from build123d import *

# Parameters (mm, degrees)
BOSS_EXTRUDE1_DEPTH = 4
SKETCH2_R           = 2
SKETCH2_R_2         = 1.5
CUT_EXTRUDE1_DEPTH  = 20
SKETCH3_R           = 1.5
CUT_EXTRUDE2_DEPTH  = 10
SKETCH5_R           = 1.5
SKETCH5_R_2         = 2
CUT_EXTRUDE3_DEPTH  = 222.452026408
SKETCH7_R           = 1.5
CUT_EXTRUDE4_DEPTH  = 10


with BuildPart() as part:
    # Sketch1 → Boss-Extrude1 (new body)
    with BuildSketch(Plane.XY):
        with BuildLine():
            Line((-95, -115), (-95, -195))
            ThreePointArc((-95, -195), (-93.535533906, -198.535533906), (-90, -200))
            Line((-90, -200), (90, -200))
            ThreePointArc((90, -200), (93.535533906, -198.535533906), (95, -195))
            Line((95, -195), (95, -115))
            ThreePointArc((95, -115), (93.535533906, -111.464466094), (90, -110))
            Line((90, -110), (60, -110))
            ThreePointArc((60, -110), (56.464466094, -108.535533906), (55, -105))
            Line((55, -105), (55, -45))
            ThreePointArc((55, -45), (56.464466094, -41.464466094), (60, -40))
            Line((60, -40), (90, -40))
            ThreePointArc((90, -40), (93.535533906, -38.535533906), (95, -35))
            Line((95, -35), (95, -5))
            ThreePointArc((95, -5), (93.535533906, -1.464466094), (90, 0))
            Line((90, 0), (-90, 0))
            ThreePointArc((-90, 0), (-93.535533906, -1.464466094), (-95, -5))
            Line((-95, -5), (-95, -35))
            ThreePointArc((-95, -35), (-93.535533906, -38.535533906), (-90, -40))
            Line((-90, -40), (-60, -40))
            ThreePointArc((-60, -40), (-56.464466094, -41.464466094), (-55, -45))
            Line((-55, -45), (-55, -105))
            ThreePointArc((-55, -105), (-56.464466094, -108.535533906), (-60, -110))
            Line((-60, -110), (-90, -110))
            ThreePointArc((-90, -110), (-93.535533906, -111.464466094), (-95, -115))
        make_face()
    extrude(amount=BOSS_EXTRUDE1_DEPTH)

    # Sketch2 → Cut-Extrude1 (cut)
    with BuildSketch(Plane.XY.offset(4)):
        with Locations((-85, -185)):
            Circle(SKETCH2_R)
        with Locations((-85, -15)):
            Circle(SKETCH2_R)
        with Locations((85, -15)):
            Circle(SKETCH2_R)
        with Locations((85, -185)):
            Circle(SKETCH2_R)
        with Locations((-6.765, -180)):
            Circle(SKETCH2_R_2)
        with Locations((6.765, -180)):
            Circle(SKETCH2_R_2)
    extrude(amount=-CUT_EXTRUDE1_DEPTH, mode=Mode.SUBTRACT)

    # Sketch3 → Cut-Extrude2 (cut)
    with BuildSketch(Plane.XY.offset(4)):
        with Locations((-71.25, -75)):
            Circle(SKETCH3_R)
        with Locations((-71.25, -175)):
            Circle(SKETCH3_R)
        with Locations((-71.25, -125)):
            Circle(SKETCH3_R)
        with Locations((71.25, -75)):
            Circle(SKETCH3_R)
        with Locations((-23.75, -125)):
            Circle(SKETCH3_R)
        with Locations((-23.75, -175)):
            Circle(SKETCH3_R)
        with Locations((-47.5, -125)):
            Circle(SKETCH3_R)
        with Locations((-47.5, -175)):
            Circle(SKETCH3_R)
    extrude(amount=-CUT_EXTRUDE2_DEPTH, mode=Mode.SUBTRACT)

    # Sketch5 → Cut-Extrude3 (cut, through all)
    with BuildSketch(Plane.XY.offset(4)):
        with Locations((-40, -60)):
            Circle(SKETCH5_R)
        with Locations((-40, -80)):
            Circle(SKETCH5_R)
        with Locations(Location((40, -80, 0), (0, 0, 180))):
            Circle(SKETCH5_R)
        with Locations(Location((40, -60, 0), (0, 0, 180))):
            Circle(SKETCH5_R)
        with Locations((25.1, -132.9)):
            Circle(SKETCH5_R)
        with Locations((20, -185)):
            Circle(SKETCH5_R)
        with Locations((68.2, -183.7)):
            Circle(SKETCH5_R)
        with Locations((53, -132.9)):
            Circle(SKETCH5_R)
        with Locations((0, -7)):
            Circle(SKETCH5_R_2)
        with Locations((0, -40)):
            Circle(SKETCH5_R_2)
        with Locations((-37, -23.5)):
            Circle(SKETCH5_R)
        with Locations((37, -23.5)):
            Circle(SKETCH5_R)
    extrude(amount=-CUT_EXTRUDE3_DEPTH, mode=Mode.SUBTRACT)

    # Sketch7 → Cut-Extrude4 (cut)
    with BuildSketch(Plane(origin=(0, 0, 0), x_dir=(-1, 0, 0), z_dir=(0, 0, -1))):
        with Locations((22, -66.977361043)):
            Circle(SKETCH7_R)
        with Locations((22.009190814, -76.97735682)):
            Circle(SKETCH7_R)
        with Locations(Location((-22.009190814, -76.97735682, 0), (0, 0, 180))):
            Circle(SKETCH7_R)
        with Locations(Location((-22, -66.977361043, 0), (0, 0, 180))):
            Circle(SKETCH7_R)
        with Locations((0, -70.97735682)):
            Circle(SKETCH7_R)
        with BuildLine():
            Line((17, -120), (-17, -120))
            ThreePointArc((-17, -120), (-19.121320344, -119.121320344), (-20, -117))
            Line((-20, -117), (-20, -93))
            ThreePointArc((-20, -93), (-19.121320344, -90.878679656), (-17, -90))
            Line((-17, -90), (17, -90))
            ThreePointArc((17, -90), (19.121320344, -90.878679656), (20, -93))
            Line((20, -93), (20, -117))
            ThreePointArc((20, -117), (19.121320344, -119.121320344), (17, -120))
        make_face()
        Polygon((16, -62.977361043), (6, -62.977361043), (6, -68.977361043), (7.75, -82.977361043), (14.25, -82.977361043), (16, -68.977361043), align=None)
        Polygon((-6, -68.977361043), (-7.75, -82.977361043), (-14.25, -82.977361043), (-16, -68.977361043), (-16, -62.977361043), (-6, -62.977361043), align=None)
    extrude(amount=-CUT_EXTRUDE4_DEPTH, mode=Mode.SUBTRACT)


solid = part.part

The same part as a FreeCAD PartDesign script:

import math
import FreeCAD as App
import Part
import Sketcher


def add_polygon(sketch, points):
    """Adds a closed chain of lines whose ends are joined by coincident constraints."""
    first, n = sketch.GeometryCount, len(points)
    for a, b in zip(points, points[1:] + points[:1]):
        sketch.addGeometry(Part.LineSegment(App.Vector(*a, 0), App.Vector(*b, 0)), False)
    for i in range(n):
        sketch.addConstraint(Sketcher.Constraint("Coincident", first + i, 2, first + (i + 1) % n, 1))

doc = App.newDocument("Part")
body = doc.addObject("PartDesign::Body", "Body")

sketch1 = body.newObject("Sketcher::SketchObject", "Sketch")
sketch1.AttachmentSupport = (doc.getObject("XY_Plane"), [""])
sketch1.MapMode = "FlatFace"
sketch1.addGeometry([
    Part.LineSegment(App.Vector(-95, -115, 0), App.Vector(-95, -195, 0)),
    Part.ArcOfCircle(Part.Circle(App.Vector(-90, -195, 0), App.Vector(0, 0, 1), 5), math.radians(180), math.radians(270)),
    Part.LineSegment(App.Vector(-90, -200, 0), App.Vector(90, -200, 0)),
    Part.ArcOfCircle(Part.Circle(App.Vector(90, -195, 0), App.Vector(0, 0, 1), 5), math.radians(-90), math.radians(0)),
    Part.LineSegment(App.Vector(95, -195, 0), App.Vector(95, -115, 0)),
    Part.ArcOfCircle(Part.Circle(App.Vector(90, -115, 0), App.Vector(0, 0, 1), 5), math.radians(0), math.radians(90)),
    Part.LineSegment(App.Vector(90, -110, 0), App.Vector(60, -110, 0)),
    Part.ArcOfCircle(Part.Circle(App.Vector(60, -105, 0), App.Vector(0, 0, 1), 5), math.radians(180), math.radians(270)),
    Part.LineSegment(App.Vector(55, -105, 0), App.Vector(55, -45, 0)),
    Part.ArcOfCircle(Part.Circle(App.Vector(60, -45, 0), App.Vector(0, 0, 1), 5), math.radians(90), math.radians(180)),
    Part.LineSegment(App.Vector(60, -40, 0), App.Vector(90, -40, 0)),
    Part.ArcOfCircle(Part.Circle(App.Vector(90, -35, 0), App.Vector(0, 0, 1), 5), math.radians(-90), math.radians(0)),
    Part.LineSegment(App.Vector(95, -35, 0), App.Vector(95, -5, 0)),
    Part.ArcOfCircle(Part.Circle(App.Vector(90, -5, 0), App.Vector(0, 0, 1), 5), math.radians(0), math.radians(90)),
    Part.LineSegment(App.Vector(90, 0, 0), App.Vector(-90, 0, 0)),
    Part.ArcOfCircle(Part.Circle(App.Vector(-90, -5, 0), App.Vector(0, 0, 1), 5), math.radians(90), math.radians(180)),
    Part.LineSegment(App.Vector(-95, -5, 0), App.Vector(-95, -35, 0)),
    Part.ArcOfCircle(Part.Circle(App.Vector(-90, -35, 0), App.Vector(0, 0, 1), 5), math.radians(180), math.radians(270)),
    Part.LineSegment(App.Vector(-90, -40, 0), App.Vector(-60, -40, 0)),
    Part.ArcOfCircle(Part.Circle(App.Vector(-60, -45, 0), App.Vector(0, 0, 1), 5), math.radians(0), math.radians(90)),
    Part.LineSegment(App.Vector(-55, -45, 0), App.Vector(-55, -105, 0)),
    Part.ArcOfCircle(Part.Circle(App.Vector(-60, -105, 0), App.Vector(0, 0, 1), 5), math.radians(-90), math.radians(0)),
    Part.LineSegment(App.Vector(-60, -110, 0), App.Vector(-90, -110, 0)),
    Part.ArcOfCircle(Part.Circle(App.Vector(-90, -115, 0), App.Vector(0, 0, 1), 5), math.radians(90), math.radians(180)),
], False)
sketch1.addConstraint([
    Sketcher.Constraint("Tangent", 0, 2, 1, 1),
    Sketcher.Constraint("Tangent", 1, 2, 2, 1),
    Sketcher.Constraint("Tangent", 2, 2, 3, 1),
    Sketcher.Constraint("Tangent", 3, 2, 4, 1),
    Sketcher.Constraint("Tangent", 4, 2, 5, 1),
    Sketcher.Constraint("Tangent", 5, 2, 6, 1),
    Sketcher.Constraint("Tangent", 6, 2, 7, 2),
    Sketcher.Constraint("Tangent", 7, 1, 8, 1),
    Sketcher.Constraint("Tangent", 8, 2, 9, 2),
    Sketcher.Constraint("Tangent", 9, 1, 10, 1),
    Sketcher.Constraint("Tangent", 10, 2, 11, 1),
    Sketcher.Constraint("Tangent", 11, 2, 12, 1),
    Sketcher.Constraint("Tangent", 12, 2, 13, 1),
    Sketcher.Constraint("Tangent", 13, 2, 14, 1),
    Sketcher.Constraint("Tangent", 14, 2, 15, 1),
    Sketcher.Constraint("Tangent", 15, 2, 16, 1),
    Sketcher.Constraint("Tangent", 16, 2, 17, 1),
    Sketcher.Constraint("Tangent", 17, 2, 18, 1),
    Sketcher.Constraint("Tangent", 18, 2, 19, 2),
    Sketcher.Constraint("Tangent", 19, 1, 20, 1),
    Sketcher.Constraint("Tangent", 20, 2, 21, 2),
    Sketcher.Constraint("Tangent", 21, 1, 22, 1),
    Sketcher.Constraint("Tangent", 22, 2, 23, 1),
    Sketcher.Constraint("Tangent", 23, 2, 0, 1),
    Sketcher.Constraint("Vertical", 0),
    Sketcher.Constraint("Horizontal", 2),
    Sketcher.Constraint("Vertical", 4),
    Sketcher.Constraint("Horizontal", 6),
    Sketcher.Constraint("Vertical", 8),
    Sketcher.Constraint("Horizontal", 10),
    Sketcher.Constraint("Vertical", 12),
    Sketcher.Constraint("Horizontal", 14),
    Sketcher.Constraint("Vertical", 16),
    Sketcher.Constraint("Horizontal", 18),
    Sketcher.Constraint("Vertical", 20),
    Sketcher.Constraint("Horizontal", 22),
    Sketcher.Constraint("Equal", 1, 3),
    Sketcher.Constraint("Equal", 3, 5),
    Sketcher.Constraint("Equal", 5, 7),
    Sketcher.Constraint("Equal", 7, 9),
    Sketcher.Constraint("Equal", 9, 11),
    Sketcher.Constraint("Equal", 11, 13),
    Sketcher.Constraint("Equal", 13, 15),
    Sketcher.Constraint("Equal", 15, 17),
    Sketcher.Constraint("Equal", 17, 19),
    Sketcher.Constraint("Equal", 19, 21),
    Sketcher.Constraint("Equal", 21, 23),
    Sketcher.Constraint("Symmetric", 13, 2, 14, 2, -1, 1),
    Sketcher.Constraint("Symmetric", 9, 3, 19, 3, -2),
    Sketcher.Constraint("Symmetric", 5, 3, 23, 3, -2),
    Sketcher.Constraint("Vertical", 5, 3, 11, 3),
    Sketcher.Constraint("Equal", 22, 12),
    Sketcher.Constraint("Radius", 1, 5.0),
    Sketcher.Constraint("DistanceX", 2, 1, 2, 2, 180.0),
    Sketcher.Constraint("DistanceX", 6, 2, 6, 1, 30.0),
    Sketcher.Constraint("DistanceY", 0, 2, 0, 1, 80.0),
    Sketcher.Constraint("DistanceY", 8, 1, 8, 2, 60.0),
])
pad1 = body.newObject("PartDesign::Pad", "Pad")
pad1.Profile = sketch1
pad1.Length = 4

sketch2 = body.newObject("Sketcher::SketchObject", "Sketch001")
sketch2.AttachmentSupport = (doc.getObject("XY_Plane"), [""])
sketch2.MapMode = "FlatFace"
sketch2.AttachmentOffset = App.Placement(App.Vector(0, 0, 4), App.Rotation())
sketch2.addGeometry([
    Part.Circle(App.Vector(-85, -185, 0), App.Vector(0, 0, 1), 2),
    Part.Circle(App.Vector(-85, -15, 0), App.Vector(0, 0, 1), 2),
    Part.Circle(App.Vector(85, -15, 0), App.Vector(0, 0, 1), 2),
    Part.Circle(App.Vector(85, -185, 0), App.Vector(0, 0, 1), 2),
    Part.Circle(App.Vector(-6.8, -180, 0), App.Vector(0, 0, 1), 1.5),
    Part.Circle(App.Vector(6.8, -180, 0), App.Vector(0, 0, 1), 1.5),
], False)
sketch2.addConstraint([
    Sketcher.Constraint("Equal", 0, 1),
    Sketcher.Constraint("Equal", 1, 2),
    Sketcher.Constraint("Equal", 2, 3),
    Sketcher.Constraint("Equal", 4, 5),
    Sketcher.Constraint("Symmetric", 1, 3, 2, 3, -2),
    Sketcher.Constraint("Symmetric", 0, 3, 3, 3, -2),
    Sketcher.Constraint("Symmetric", 4, 3, 5, 3, -2),
    Sketcher.Constraint("Vertical", 0, 3, 1, 3),
    Sketcher.Constraint("Diameter", 0, 4.0),
    Sketcher.Constraint("Diameter", 4, 3.0),
    Sketcher.Constraint("DistanceX", 0, 3, -1, 1, 85.0),
    Sketcher.Constraint("DistanceY", 0, 3, -1, 1, 185.0),
    Sketcher.Constraint("DistanceY", 1, 3, -1, 1, 15.0),
    Sketcher.Constraint("DistanceY", 4, 3, -1, 1, 180.0),
    Sketcher.Constraint("DistanceX", 4, 3, 5, 3, 13.53),
])
pocket1 = body.newObject("PartDesign::Pocket", "Pocket")
pocket1.Profile = sketch2
pocket1.Length = 20

sketch3 = body.newObject("Sketcher::SketchObject", "Sketch002")
sketch3.AttachmentSupport = (doc.getObject("XY_Plane"), [""])
sketch3.MapMode = "FlatFace"
sketch3.AttachmentOffset = App.Placement(App.Vector(0, 0, 4), App.Rotation())
sketch3.addGeometry([
    Part.Circle(App.Vector(-71.2, -75, 0), App.Vector(0, 0, 1), 1.5),
    Part.Circle(App.Vector(-71.2, -175, 0), App.Vector(0, 0, 1), 1.5),
    Part.Circle(App.Vector(-71.2, -125, 0), App.Vector(0, 0, 1), 1.5),
    Part.Circle(App.Vector(71.2, -75, 0), App.Vector(0, 0, 1), 1.5),
    Part.Circle(App.Vector(-23.8, -125, 0), App.Vector(0, 0, 1), 1.5),
    Part.Circle(App.Vector(-23.8, -175, 0), App.Vector(0, 0, 1), 1.5),
    Part.Circle(App.Vector(-47.5, -125, 0), App.Vector(0, 0, 1), 1.5),
    Part.Circle(App.Vector(-47.5, -175, 0), App.Vector(0, 0, 1), 1.5),
], False)
sketch3.addConstraint([
    Sketcher.Constraint("Equal", 0, 1),
    Sketcher.Constraint("Equal", 1, 2),
    Sketcher.Constraint("Equal", 2, 3),
    Sketcher.Constraint("Equal", 3, 4),
    Sketcher.Constraint("Equal", 4, 5),
    Sketcher.Constraint("Equal", 5, 6),
    Sketcher.Constraint("Equal", 6, 7),
    Sketcher.Constraint("Symmetric", 0, 3, 3, 3, -2),
    Sketcher.Constraint("Horizontal", 2, 3, 4, 3),
    Sketcher.Constraint("Horizontal", 1, 3, 5, 3),
    Sketcher.Constraint("Horizontal", 4, 3, 6, 3),
    Sketcher.Constraint("Horizontal", 5, 3, 7, 3),
    Sketcher.Constraint("Vertical", 0, 3, 1, 3),
    Sketcher.Constraint("Vertical", 1, 3, 2, 3),
    Sketcher.Constraint("Vertical", 4, 3, 5, 3),
    Sketcher.Constraint("Vertical", 6, 3, 7, 3),
    Sketcher.Constraint("Diameter", 0, 3.0),
    Sketcher.Constraint("DistanceY", 0, 3, -1, 1, 75.0),
    Sketcher.Constraint("DistanceY", 1, 3, -1, 1, 175.0),
    Sketcher.Constraint("DistanceY", 2, 3, -1, 1, 125.0),
    Sketcher.Constraint("DistanceX", 4, 3, 3, 3, 95.0),
    Sketcher.Constraint("DistanceX", 6, 3, -1, 1, 47.5),
    Sketcher.Constraint("DistanceX", 0, 3, 3, 3, 142.5),
])
pocket2 = body.newObject("PartDesign::Pocket", "Pocket001")
pocket2.Profile = sketch3
pocket2.Length = 10

sketch4 = body.newObject("Sketcher::SketchObject", "Sketch003")
sketch4.AttachmentSupport = (doc.getObject("XY_Plane"), [""])
sketch4.MapMode = "FlatFace"
sketch4.AttachmentOffset = App.Placement(App.Vector(0, 0, 4), App.Rotation())
sketch4.addGeometry([
    Part.Circle(App.Vector(-40, -60, 0), App.Vector(0, 0, 1), 1.5),
    Part.Circle(App.Vector(-40, -80, 0), App.Vector(0, 0, 1), 1.5),
    Part.Circle(App.Vector(40, -80, 0), App.Vector(0, 0, 1), 1.5),
    Part.Circle(App.Vector(40, -60, 0), App.Vector(0, 0, 1), 1.5),
    Part.Circle(App.Vector(25.1, -132.9, 0), App.Vector(0, 0, 1), 1.5),
    Part.Circle(App.Vector(20, -185, 0), App.Vector(0, 0, 1), 1.5),
    Part.Circle(App.Vector(68.2, -183.7, 0), App.Vector(0, 0, 1), 1.5),
    Part.Circle(App.Vector(53, -132.9, 0), App.Vector(0, 0, 1), 1.5),
    Part.Circle(App.Vector(0, -7, 0), App.Vector(0, 0, 1), 2),
    Part.Circle(App.Vector(0, -40, 0), App.Vector(0, 0, 1), 2),
    Part.Circle(App.Vector(-37, -23.5, 0), App.Vector(0, 0, 1), 1.5),
    Part.Circle(App.Vector(37, -23.5, 0), App.Vector(0, 0, 1), 1.5),
], False)
sketch4.addConstraint([
    Sketcher.Constraint("Equal", 0, 1),
    Sketcher.Constraint("Equal", 1, 2),
    Sketcher.Constraint("Equal", 2, 3),
    Sketcher.Constraint("Equal", 3, 4),
    Sketcher.Constraint("Equal", 4, 5),
    Sketcher.Constraint("Equal", 5, 6),
    Sketcher.Constraint("Equal", 6, 7),
    Sketcher.Constraint("Equal", 8, 9),
    Sketcher.Constraint("Equal", 7, 10),
    Sketcher.Constraint("Equal", 10, 11),
    Sketcher.Constraint("Symmetric", 1, 3, 2, 3, -2),
    Sketcher.Constraint("Symmetric", 0, 3, 3, 3, -2),
    Sketcher.Constraint("Symmetric", 10, 3, 11, 3, -2),
    Sketcher.Constraint("PointOnObject", 8, 3, -2),
    Sketcher.Constraint("PointOnObject", 9, 3, -2),
    Sketcher.Constraint("Horizontal", 4, 3, 7, 3),
    Sketcher.Constraint("Vertical", 0, 3, 1, 3),
    Sketcher.Constraint("Diameter", 0, 3.0),
    Sketcher.Constraint("Diameter", 8, 4.0),
    Sketcher.Constraint("DistanceX", 0, 3, -1, 1, 40.0),
    Sketcher.Constraint("DistanceY", 0, 3, -1, 1, 60.0),
    Sketcher.Constraint("DistanceY", 1, 3, -1, 1, 80.0),
    Sketcher.Constraint("DistanceX", -1, 1, 5, 3, 20.0),
    Sketcher.Constraint("DistanceY", 5, 3, -1, 1, 185.0),
    Sketcher.Constraint("DistanceX", -1, 1, 7, 3, 53.0),
    Sketcher.Constraint("DistanceY", 8, 3, -1, 1, 7.0),
    Sketcher.Constraint("DistanceY", 9, 3, -1, 1, 40.0),
    Sketcher.Constraint("DistanceX", 10, 3, -1, 1, 37.0),
    Sketcher.Constraint("DistanceX", -1, 1, 4, 3, 25.1),
    Sketcher.Constraint("DistanceY", 4, 3, -1, 1, 132.9),
    Sketcher.Constraint("DistanceX", -1, 1, 6, 3, 68.2),
    Sketcher.Constraint("DistanceY", 6, 3, -1, 1, 183.7),
    Sketcher.Constraint("DistanceY", 10, 3, -1, 1, 23.5),
])
pocket3 = body.newObject("PartDesign::Pocket", "Pocket002")
pocket3.Profile = sketch4
pocket3.Type = "ThroughAll"

sketch5 = body.newObject("Sketcher::SketchObject", "Sketch004")
sketch5.AttachmentSupport = (doc.getObject("XY_Plane"), [""])
sketch5.MapMode = "FlatFace"
sketch5.addGeometry(Part.Circle(App.Vector(-22, -67, 0), App.Vector(0, 0, 1), 1.5), False)
sketch5.addGeometry(Part.Circle(App.Vector(-22, -77, 0), App.Vector(0, 0, 1), 1.5), False)
sketch5.addGeometry(Part.Circle(App.Vector(22, -77, 0), App.Vector(0, 0, 1), 1.5), False)
sketch5.addGeometry(Part.Circle(App.Vector(22, -67, 0), App.Vector(0, 0, 1), 1.5), False)
sketch5.addGeometry(Part.Circle(App.Vector(0, -71, 0), App.Vector(0, 0, 1), 1.5), False)
sketch5.addGeometry(Part.LineSegment(App.Vector(17, -120, 0), App.Vector(-17, -120, 0)), False)
sketch5.addGeometry(Part.ArcOfCircle(Part.Circle(App.Vector(-17, -117, 0), App.Vector(0, 0, 1), 3), math.radians(180), math.radians(270)), False)
sketch5.addGeometry(Part.LineSegment(App.Vector(-20, -117, 0), App.Vector(-20, -93, 0)), False)
sketch5.addGeometry(Part.ArcOfCircle(Part.Circle(App.Vector(-17, -93, 0), App.Vector(0, 0, 1), 3), math.radians(90), math.radians(180)), False)
sketch5.addGeometry(Part.LineSegment(App.Vector(-17, -90, 0), App.Vector(17, -90, 0)), False)
sketch5.addGeometry(Part.ArcOfCircle(Part.Circle(App.Vector(17, -93, 0), App.Vector(0, 0, 1), 3), math.radians(0), math.radians(90)), False)
sketch5.addGeometry(Part.LineSegment(App.Vector(20, -93, 0), App.Vector(20, -117, 0)), False)
sketch5.addGeometry(Part.ArcOfCircle(Part.Circle(App.Vector(17, -117, 0), App.Vector(0, 0, 1), 3), math.radians(-90), math.radians(0)), False)
add_polygon(sketch5, [(-16, -63), (-6, -63), (-6, -69), (-7.8, -83), (-14.2, -83), (-16, -69)])
add_polygon(sketch5, [(7.8, -83), (6, -69), (6, -63), (16, -63), (16, -69), (14.2, -83)])
sketch5.addConstraint([
    Sketcher.Constraint("Tangent", 5, 2, 6, 2),
    Sketcher.Constraint("Tangent", 6, 1, 7, 1),
    Sketcher.Constraint("Tangent", 7, 2, 8, 2),
    Sketcher.Constraint("Tangent", 8, 1, 9, 1),
    Sketcher.Constraint("Tangent", 9, 2, 10, 2),
    Sketcher.Constraint("Tangent", 10, 1, 11, 1),
    Sketcher.Constraint("Tangent", 11, 2, 12, 2),
    Sketcher.Constraint("Tangent", 12, 1, 5, 1),
    Sketcher.Constraint("Horizontal", 5),
    Sketcher.Constraint("Vertical", 7),
    Sketcher.Constraint("Horizontal", 9),
    Sketcher.Constraint("Vertical", 11),
    Sketcher.Constraint("Horizontal", 13),
    Sketcher.Constraint("Vertical", 14),
    Sketcher.Constraint("Horizontal", 16),
    Sketcher.Constraint("Vertical", 18),
    Sketcher.Constraint("Vertical", 20),
    Sketcher.Constraint("Horizontal", 21),
    Sketcher.Constraint("Vertical", 22),
    Sketcher.Constraint("Horizontal", 24),
    Sketcher.Constraint("Equal", 0, 1),
    Sketcher.Constraint("Equal", 1, 2),
    Sketcher.Constraint("Equal", 2, 3),
    Sketcher.Constraint("Equal", 3, 4),
    Sketcher.Constraint("Equal", 6, 8),
    Sketcher.Constraint("Equal", 8, 10),
    Sketcher.Constraint("Equal", 10, 12),
    Sketcher.Constraint("Symmetric", 1, 3, 2, 3, -2),
    Sketcher.Constraint("Symmetric", 0, 3, 3, 3, -2),
    Sketcher.Constraint("Symmetric", 14, 2, 19, 2, -2),
    Sketcher.Constraint("Symmetric", 18, 2, 21, 2, -2),
    Sketcher.Constraint("Symmetric", 16, 2, 23, 2, -2),
    Sketcher.Constraint("PointOnObject", 4, 3, -2),
    Sketcher.Constraint("Parallel", 17, 19),
    Sketcher.Constraint("Parallel", 15, 23),
    Sketcher.Constraint("Horizontal", 14, 2, 17, 2),
    Sketcher.Constraint("Horizontal", 19, 2, 22, 2),
    Sketcher.Constraint("Diameter", 0, 3.0),
    Sketcher.Constraint("Radius", 6, 3.0),
    Sketcher.Constraint("DistanceX", 5, 2, 5, 1, 34.0),
    Sketcher.Constraint("DistanceX", 13, 1, 13, 2, 10.0),
    Sketcher.Constraint("DistanceY", 7, 1, 7, 2, 24.0),
    Sketcher.Constraint("DistanceY", 14, 2, 14, 1, 6.0),
    Sketcher.Constraint("DistanceX", 16, 2, 16, 1, 6.5),
    Sketcher.Constraint("DistanceX", 0, 3, -1, 1, 22.0),
    Sketcher.Constraint("DistanceX", 6, 3, -1, 1, 17.0),
    Sketcher.Constraint("DistanceY", 6, 3, -1, 1, 117.0),
    Sketcher.Constraint("DistanceX", 13, 2, -1, 1, 6.0),
    Sketcher.Constraint("DistanceY", 1, 3, 4, 3, 6.0),
    Sketcher.Constraint("DistanceY", 0, 3, 13, 2, 4.0),
    Sketcher.Constraint("DistanceY", 15, 2, 14, 2, 14.0),
    Sketcher.Constraint("DistanceY", 0, 3, -1, 1, 66.977361),
    Sketcher.Constraint("DistanceX", 1, 3, -1, 1, 22.009191),
    Sketcher.Constraint("DistanceY", 1, 3, -1, 1, 76.977357),
])
pocket4 = body.newObject("PartDesign::Pocket", "Pocket003")
pocket4.Profile = sketch5
pocket4.Length = 10
pocket4.Reversed = True

doc.recompute()
